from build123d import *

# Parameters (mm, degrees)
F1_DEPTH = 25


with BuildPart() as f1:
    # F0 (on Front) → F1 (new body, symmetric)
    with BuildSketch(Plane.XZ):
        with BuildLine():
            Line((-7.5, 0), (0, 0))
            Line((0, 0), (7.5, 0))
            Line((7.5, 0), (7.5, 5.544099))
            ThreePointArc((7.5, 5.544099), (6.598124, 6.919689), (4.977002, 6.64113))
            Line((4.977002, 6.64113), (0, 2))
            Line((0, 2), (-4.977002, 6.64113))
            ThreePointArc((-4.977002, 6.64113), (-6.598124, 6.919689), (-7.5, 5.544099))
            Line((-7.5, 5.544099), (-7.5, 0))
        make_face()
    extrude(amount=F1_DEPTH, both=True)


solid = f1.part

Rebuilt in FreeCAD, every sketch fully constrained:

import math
import FreeCAD as App
import Part
import Sketcher
Q = App.Units.Quantity

doc = App.newDocument("Part")
params = doc.addObject("Spreadsheet::Sheet", "Params")
for row, (alias, value) in enumerate([
    ("sketch1_radius", "1.5 mm"),
    ("sketch1_width", "15 mm"),
    ("pad1_length", "50 mm"),
], start=1):
    params.set(f"A{row}", alias)
    params.set(f"B{row}", "=" + value)
    params.setAlias(f"B{row}", alias)

body = doc.addObject("PartDesign::Body", "Body")

# Sketch on XZ plane
sketch1 = body.newObject("Sketcher::SketchObject", "Sketch")
sketch1.AttachmentSupport = (doc.getObject("XZ_Plane"), [""])
sketch1.MapMode = "FlatFace"
sketch1.addGeometry([
    Part.LineSegment(App.Vector(-7.5, 0, 0), App.Vector(7.5, 0, 0)),  # 0
    Part.LineSegment(App.Vector(7.5, 0, 0), App.Vector(7.5, 5.544099, 0)),  # 1
    Part.ArcOfCircle(Part.Circle(App.Vector(6, 5.544099, 0), App.Vector(0, 0, 1), 1.5), math.radians(0.00001), math.radians(132.99998)),  # 2
    Part.LineSegment(App.Vector(4.977002, 6.64113, 0), App.Vector(0, 2, 0)),  # 3
    Part.LineSegment(App.Vector(0, 2, 0), App.Vector(-4.977002, 6.64113, 0)),  # 4
    Part.ArcOfCircle(Part.Circle(App.Vector(-6, 5.544099, 0), App.Vector(0, 0, 1), 1.5), math.radians(47.00002), math.radians(179.99999)),  # 5
    Part.LineSegment(App.Vector(-7.5, 5.544099, 0), App.Vector(-7.5, 0, 0)),  # 6
], False)
sketch1.addConstraint([
    Sketcher.Constraint("Coincident", 0, 2, 1, 1),
    Sketcher.Constraint("Tangent", 1, 2, 2, 1),
    Sketcher.Constraint("Tangent", 2, 2, 3, 1),
    Sketcher.Constraint("Coincident", 3, 2, 4, 1),
    Sketcher.Constraint("Tangent", 4, 2, 5, 1),
    Sketcher.Constraint("Tangent", 5, 2, 6, 1),
    Sketcher.Constraint("Coincident", 6, 2, 0, 1),
    Sketcher.Constraint("Horizontal", 0),
    Sketcher.Constraint("Vertical", 1),
    Sketcher.Constraint("Vertical", 6),
    Sketcher.Constraint("Equal", 2, 5),
    Sketcher.Constraint("Symmetric", 0, 2, 6, 2, -1, 1),
    Sketcher.Constraint("Symmetric", 2, 2, 4, 2, -2),
    Sketcher.Constraint("Radius", 2, 1.5),
    Sketcher.Constraint("DistanceX", 0, 1, 0, 2, 15.0),
    Sketcher.Constraint("Angle", 3, Q("-136.999997 deg")),
    Sketcher.Constraint("DistanceY", -1, 1, 3, 2, 2.0),
])
sketch1.setExpression("Constraints[13]", "Params.sketch1_radius")
sketch1.setExpression("Constraints[14]", "Params.sketch1_width")
pad1 = body.newObject("PartDesign::Pad", "Pad")
pad1.Profile = sketch1
pad1.setExpression("Length", "Params.pad1_length")
pad1.Midplane = True

doc.recompute()
